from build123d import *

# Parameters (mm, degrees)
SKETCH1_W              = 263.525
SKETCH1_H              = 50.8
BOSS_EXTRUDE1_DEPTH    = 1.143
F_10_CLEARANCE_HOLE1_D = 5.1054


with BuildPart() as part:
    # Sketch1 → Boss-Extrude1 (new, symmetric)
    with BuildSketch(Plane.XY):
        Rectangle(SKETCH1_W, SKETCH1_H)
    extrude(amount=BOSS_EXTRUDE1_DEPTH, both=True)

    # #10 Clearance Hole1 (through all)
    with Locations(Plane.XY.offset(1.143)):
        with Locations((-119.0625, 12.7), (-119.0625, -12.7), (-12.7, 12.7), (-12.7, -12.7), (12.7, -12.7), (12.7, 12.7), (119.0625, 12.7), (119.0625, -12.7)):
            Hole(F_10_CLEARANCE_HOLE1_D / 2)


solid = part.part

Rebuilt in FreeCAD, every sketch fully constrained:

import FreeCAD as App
import Part
import Sketcher
from FreeCAD import Vector
Q = App.Units.Quantity


def add_polygon(sketch, points):
    """Adds a closed chain of lines whose ends are joined by coincident constraints."""
    first, n = sketch.GeometryCount, len(points)
    for a, b in zip(points, points[1:] + points[:1]):
        sketch.addGeometry(Part.LineSegment(App.Vector(*a, 0), App.Vector(*b, 0)), False)
    for i in range(n):
        sketch.addConstraint(Sketcher.Constraint("Coincident", first + i, 2, first + (i + 1) % n, 1))

doc = App.newDocument("Part")
params = doc.addObject("Spreadsheet::Sheet", "Params")
for row, (alias, value) in enumerate([
    ("sketch1_height", "2 in"),
    ("sketch1_width", "10.375 in"),
    ("pad1_length", "0.09 in"),
    ("sketch2_diameter", "0.201 in"),
    ("hole_diameter", "0.201 in"),
], start=1):
    params.set(f"A{row}", alias)
    params.set(f"B{row}", "=" + value)
    params.setAlias(f"B{row}", alias)

body = doc.addObject("PartDesign::Body", "Body")

# Sketch on XY plane
sketch1 = body.newObject("Sketcher::SketchObject", "Sketch")
sketch1.AttachmentSupport = (doc.getObject("XY_Plane"), [""])
sketch1.MapMode = "FlatFace"
add_polygon(sketch1, [(-132, 25), (-132, -25), (132, -25), (132, 25)])  # lines 0-3
sketch1.addConstraint(Sketcher.Constraint("Vertical", 0))
sketch1.addConstraint(Sketcher.Constraint("Horizontal", 1))
sketch1.addConstraint(Sketcher.Constraint("Vertical", 2))
sketch1.addConstraint(Sketcher.Constraint("Horizontal", 3))
sketch1.addConstraint(Sketcher.Constraint("Symmetric", 0, 2, 2, 2, -1, 1))
sketch1.addConstraint(Sketcher.Constraint("DistanceY", 0, 2, 0, 1, Q("2 in")))
sketch1.addConstraint(Sketcher.Constraint("DistanceX", 1, 1, 1, 2, Q("10.375 in")))
sketch1.setExpression("Constraints[9]", "Params.sketch1_height")
sketch1.setExpression("Constraints[10]", "Params.sketch1_width")
pad1 = body.newObject("PartDesign::Pad", "Pad")
pad1.Profile = sketch1
pad1.setExpression("Length", "Params.pad1_length")
pad1.Midplane = True

# Sketch on XY plane
sketch2 = body.newObject("Sketcher::SketchObject", "Sketch001")
sketch2.AttachmentSupport = (doc.getObject("XY_Plane"), [""])
sketch2.MapMode = "FlatFace"
sketch2.AttachmentOffset = App.Placement(Vector(0, 0, 0.045 * 25.4), App.Rotation())
sketch2.addGeometry(Part.Circle(Vector(-119.1, 12.7, 0), Vector(0, 0, 1), 2.6), False)
sketch2.addGeometry(Part.Circle(Vector(-119.1, -12.7, 0), Vector(0, 0, 1), 2.6), False)
sketch2.addGeometry(Part.Circle(Vector(-12.7, 12.7, 0), Vector(0, 0, 1), 2.6), False)
sketch2.addGeometry(Part.Circle(Vector(-12.7, -12.7, 0), Vector(0, 0, 1), 2.6), False)
sketch2.addGeometry(Part.Circle(Vector(12.7, -12.7, 0), Vector(0, 0, 1), 2.6), False)
sketch2.addGeometry(Part.Circle(Vector(12.7, 12.7, 0), Vector(0, 0, 1), 2.6), False)
sketch2.addGeometry(Part.Circle(Vector(119.1, 12.7, 0), Vector(0, 0, 1), 2.6), False)
sketch2.addGeometry(Part.Circle(Vector(119.1, -12.7, 0), Vector(0, 0, 1), 2.6), False)
sketch2.addConstraint(Sketcher.Constraint("Equal", 0, 1))
sketch2.addConstraint(Sketcher.Constraint("Equal", 1, 2))
sketch2.addConstraint(Sketcher.Constraint("Equal", 2, 3))
sketch2.addConstraint(Sketcher.Constraint("Equal", 3, 4))
sketch2.addConstraint(Sketcher.Constraint("Equal", 4, 5))
sketch2.addConstraint(Sketcher.Constraint("Equal", 5, 6))
sketch2.addConstraint(Sketcher.Constraint("Equal", 6, 7))
sketch2.addConstraint(Sketcher.Constraint("Symmetric", 2, 3, 4, 3, -1, 1))
sketch2.addConstraint(Sketcher.Constraint("Symmetric", 3, 3, 5, 3, -1, 1))
sketch2.addConstraint(Sketcher.Constraint("Symmetric", 1, 3, 6, 3, -1, 1))
sketch2.addConstraint(Sketcher.Constraint("Symmetric", 0, 3, 7, 3, -1, 1))
sketch2.addConstraint(Sketcher.Constraint("Symmetric", 3, 3, 4, 3, -2))
sketch2.addConstraint(Sketcher.Constraint("Symmetric", 0, 3, 6, 3, -2))
sketch2.addConstraint(Sketcher.Constraint("Horizontal", 0, 3, 2, 3))
sketch2.addConstraint(Sketcher.Constraint("Diameter", 0, Q("0.201 in")))
sketch2.addConstraint(Sketcher.Constraint("DistanceY", 1, 3, 0, 3, Q("1 in")))
sketch2.addConstraint(Sketcher.Constraint("DistanceX", 3, 3, 4, 3, Q("1 in")))
sketch2.addConstraint(Sketcher.Constraint("DistanceX", 0, 3, -1, 1, Q("4.6875 in")))
sketch2.setExpression("Constraints[14]", "Params.sketch2_diameter")
doc.recompute()
hole = body.newObject("PartDesign::Hole", "Hole")
hole.Profile = sketch2
hole.ThreadType = "None"
hole.setExpression("Diameter", "Params.hole_diameter")
hole.DepthType = "ThroughAll"

doc.recompute()
